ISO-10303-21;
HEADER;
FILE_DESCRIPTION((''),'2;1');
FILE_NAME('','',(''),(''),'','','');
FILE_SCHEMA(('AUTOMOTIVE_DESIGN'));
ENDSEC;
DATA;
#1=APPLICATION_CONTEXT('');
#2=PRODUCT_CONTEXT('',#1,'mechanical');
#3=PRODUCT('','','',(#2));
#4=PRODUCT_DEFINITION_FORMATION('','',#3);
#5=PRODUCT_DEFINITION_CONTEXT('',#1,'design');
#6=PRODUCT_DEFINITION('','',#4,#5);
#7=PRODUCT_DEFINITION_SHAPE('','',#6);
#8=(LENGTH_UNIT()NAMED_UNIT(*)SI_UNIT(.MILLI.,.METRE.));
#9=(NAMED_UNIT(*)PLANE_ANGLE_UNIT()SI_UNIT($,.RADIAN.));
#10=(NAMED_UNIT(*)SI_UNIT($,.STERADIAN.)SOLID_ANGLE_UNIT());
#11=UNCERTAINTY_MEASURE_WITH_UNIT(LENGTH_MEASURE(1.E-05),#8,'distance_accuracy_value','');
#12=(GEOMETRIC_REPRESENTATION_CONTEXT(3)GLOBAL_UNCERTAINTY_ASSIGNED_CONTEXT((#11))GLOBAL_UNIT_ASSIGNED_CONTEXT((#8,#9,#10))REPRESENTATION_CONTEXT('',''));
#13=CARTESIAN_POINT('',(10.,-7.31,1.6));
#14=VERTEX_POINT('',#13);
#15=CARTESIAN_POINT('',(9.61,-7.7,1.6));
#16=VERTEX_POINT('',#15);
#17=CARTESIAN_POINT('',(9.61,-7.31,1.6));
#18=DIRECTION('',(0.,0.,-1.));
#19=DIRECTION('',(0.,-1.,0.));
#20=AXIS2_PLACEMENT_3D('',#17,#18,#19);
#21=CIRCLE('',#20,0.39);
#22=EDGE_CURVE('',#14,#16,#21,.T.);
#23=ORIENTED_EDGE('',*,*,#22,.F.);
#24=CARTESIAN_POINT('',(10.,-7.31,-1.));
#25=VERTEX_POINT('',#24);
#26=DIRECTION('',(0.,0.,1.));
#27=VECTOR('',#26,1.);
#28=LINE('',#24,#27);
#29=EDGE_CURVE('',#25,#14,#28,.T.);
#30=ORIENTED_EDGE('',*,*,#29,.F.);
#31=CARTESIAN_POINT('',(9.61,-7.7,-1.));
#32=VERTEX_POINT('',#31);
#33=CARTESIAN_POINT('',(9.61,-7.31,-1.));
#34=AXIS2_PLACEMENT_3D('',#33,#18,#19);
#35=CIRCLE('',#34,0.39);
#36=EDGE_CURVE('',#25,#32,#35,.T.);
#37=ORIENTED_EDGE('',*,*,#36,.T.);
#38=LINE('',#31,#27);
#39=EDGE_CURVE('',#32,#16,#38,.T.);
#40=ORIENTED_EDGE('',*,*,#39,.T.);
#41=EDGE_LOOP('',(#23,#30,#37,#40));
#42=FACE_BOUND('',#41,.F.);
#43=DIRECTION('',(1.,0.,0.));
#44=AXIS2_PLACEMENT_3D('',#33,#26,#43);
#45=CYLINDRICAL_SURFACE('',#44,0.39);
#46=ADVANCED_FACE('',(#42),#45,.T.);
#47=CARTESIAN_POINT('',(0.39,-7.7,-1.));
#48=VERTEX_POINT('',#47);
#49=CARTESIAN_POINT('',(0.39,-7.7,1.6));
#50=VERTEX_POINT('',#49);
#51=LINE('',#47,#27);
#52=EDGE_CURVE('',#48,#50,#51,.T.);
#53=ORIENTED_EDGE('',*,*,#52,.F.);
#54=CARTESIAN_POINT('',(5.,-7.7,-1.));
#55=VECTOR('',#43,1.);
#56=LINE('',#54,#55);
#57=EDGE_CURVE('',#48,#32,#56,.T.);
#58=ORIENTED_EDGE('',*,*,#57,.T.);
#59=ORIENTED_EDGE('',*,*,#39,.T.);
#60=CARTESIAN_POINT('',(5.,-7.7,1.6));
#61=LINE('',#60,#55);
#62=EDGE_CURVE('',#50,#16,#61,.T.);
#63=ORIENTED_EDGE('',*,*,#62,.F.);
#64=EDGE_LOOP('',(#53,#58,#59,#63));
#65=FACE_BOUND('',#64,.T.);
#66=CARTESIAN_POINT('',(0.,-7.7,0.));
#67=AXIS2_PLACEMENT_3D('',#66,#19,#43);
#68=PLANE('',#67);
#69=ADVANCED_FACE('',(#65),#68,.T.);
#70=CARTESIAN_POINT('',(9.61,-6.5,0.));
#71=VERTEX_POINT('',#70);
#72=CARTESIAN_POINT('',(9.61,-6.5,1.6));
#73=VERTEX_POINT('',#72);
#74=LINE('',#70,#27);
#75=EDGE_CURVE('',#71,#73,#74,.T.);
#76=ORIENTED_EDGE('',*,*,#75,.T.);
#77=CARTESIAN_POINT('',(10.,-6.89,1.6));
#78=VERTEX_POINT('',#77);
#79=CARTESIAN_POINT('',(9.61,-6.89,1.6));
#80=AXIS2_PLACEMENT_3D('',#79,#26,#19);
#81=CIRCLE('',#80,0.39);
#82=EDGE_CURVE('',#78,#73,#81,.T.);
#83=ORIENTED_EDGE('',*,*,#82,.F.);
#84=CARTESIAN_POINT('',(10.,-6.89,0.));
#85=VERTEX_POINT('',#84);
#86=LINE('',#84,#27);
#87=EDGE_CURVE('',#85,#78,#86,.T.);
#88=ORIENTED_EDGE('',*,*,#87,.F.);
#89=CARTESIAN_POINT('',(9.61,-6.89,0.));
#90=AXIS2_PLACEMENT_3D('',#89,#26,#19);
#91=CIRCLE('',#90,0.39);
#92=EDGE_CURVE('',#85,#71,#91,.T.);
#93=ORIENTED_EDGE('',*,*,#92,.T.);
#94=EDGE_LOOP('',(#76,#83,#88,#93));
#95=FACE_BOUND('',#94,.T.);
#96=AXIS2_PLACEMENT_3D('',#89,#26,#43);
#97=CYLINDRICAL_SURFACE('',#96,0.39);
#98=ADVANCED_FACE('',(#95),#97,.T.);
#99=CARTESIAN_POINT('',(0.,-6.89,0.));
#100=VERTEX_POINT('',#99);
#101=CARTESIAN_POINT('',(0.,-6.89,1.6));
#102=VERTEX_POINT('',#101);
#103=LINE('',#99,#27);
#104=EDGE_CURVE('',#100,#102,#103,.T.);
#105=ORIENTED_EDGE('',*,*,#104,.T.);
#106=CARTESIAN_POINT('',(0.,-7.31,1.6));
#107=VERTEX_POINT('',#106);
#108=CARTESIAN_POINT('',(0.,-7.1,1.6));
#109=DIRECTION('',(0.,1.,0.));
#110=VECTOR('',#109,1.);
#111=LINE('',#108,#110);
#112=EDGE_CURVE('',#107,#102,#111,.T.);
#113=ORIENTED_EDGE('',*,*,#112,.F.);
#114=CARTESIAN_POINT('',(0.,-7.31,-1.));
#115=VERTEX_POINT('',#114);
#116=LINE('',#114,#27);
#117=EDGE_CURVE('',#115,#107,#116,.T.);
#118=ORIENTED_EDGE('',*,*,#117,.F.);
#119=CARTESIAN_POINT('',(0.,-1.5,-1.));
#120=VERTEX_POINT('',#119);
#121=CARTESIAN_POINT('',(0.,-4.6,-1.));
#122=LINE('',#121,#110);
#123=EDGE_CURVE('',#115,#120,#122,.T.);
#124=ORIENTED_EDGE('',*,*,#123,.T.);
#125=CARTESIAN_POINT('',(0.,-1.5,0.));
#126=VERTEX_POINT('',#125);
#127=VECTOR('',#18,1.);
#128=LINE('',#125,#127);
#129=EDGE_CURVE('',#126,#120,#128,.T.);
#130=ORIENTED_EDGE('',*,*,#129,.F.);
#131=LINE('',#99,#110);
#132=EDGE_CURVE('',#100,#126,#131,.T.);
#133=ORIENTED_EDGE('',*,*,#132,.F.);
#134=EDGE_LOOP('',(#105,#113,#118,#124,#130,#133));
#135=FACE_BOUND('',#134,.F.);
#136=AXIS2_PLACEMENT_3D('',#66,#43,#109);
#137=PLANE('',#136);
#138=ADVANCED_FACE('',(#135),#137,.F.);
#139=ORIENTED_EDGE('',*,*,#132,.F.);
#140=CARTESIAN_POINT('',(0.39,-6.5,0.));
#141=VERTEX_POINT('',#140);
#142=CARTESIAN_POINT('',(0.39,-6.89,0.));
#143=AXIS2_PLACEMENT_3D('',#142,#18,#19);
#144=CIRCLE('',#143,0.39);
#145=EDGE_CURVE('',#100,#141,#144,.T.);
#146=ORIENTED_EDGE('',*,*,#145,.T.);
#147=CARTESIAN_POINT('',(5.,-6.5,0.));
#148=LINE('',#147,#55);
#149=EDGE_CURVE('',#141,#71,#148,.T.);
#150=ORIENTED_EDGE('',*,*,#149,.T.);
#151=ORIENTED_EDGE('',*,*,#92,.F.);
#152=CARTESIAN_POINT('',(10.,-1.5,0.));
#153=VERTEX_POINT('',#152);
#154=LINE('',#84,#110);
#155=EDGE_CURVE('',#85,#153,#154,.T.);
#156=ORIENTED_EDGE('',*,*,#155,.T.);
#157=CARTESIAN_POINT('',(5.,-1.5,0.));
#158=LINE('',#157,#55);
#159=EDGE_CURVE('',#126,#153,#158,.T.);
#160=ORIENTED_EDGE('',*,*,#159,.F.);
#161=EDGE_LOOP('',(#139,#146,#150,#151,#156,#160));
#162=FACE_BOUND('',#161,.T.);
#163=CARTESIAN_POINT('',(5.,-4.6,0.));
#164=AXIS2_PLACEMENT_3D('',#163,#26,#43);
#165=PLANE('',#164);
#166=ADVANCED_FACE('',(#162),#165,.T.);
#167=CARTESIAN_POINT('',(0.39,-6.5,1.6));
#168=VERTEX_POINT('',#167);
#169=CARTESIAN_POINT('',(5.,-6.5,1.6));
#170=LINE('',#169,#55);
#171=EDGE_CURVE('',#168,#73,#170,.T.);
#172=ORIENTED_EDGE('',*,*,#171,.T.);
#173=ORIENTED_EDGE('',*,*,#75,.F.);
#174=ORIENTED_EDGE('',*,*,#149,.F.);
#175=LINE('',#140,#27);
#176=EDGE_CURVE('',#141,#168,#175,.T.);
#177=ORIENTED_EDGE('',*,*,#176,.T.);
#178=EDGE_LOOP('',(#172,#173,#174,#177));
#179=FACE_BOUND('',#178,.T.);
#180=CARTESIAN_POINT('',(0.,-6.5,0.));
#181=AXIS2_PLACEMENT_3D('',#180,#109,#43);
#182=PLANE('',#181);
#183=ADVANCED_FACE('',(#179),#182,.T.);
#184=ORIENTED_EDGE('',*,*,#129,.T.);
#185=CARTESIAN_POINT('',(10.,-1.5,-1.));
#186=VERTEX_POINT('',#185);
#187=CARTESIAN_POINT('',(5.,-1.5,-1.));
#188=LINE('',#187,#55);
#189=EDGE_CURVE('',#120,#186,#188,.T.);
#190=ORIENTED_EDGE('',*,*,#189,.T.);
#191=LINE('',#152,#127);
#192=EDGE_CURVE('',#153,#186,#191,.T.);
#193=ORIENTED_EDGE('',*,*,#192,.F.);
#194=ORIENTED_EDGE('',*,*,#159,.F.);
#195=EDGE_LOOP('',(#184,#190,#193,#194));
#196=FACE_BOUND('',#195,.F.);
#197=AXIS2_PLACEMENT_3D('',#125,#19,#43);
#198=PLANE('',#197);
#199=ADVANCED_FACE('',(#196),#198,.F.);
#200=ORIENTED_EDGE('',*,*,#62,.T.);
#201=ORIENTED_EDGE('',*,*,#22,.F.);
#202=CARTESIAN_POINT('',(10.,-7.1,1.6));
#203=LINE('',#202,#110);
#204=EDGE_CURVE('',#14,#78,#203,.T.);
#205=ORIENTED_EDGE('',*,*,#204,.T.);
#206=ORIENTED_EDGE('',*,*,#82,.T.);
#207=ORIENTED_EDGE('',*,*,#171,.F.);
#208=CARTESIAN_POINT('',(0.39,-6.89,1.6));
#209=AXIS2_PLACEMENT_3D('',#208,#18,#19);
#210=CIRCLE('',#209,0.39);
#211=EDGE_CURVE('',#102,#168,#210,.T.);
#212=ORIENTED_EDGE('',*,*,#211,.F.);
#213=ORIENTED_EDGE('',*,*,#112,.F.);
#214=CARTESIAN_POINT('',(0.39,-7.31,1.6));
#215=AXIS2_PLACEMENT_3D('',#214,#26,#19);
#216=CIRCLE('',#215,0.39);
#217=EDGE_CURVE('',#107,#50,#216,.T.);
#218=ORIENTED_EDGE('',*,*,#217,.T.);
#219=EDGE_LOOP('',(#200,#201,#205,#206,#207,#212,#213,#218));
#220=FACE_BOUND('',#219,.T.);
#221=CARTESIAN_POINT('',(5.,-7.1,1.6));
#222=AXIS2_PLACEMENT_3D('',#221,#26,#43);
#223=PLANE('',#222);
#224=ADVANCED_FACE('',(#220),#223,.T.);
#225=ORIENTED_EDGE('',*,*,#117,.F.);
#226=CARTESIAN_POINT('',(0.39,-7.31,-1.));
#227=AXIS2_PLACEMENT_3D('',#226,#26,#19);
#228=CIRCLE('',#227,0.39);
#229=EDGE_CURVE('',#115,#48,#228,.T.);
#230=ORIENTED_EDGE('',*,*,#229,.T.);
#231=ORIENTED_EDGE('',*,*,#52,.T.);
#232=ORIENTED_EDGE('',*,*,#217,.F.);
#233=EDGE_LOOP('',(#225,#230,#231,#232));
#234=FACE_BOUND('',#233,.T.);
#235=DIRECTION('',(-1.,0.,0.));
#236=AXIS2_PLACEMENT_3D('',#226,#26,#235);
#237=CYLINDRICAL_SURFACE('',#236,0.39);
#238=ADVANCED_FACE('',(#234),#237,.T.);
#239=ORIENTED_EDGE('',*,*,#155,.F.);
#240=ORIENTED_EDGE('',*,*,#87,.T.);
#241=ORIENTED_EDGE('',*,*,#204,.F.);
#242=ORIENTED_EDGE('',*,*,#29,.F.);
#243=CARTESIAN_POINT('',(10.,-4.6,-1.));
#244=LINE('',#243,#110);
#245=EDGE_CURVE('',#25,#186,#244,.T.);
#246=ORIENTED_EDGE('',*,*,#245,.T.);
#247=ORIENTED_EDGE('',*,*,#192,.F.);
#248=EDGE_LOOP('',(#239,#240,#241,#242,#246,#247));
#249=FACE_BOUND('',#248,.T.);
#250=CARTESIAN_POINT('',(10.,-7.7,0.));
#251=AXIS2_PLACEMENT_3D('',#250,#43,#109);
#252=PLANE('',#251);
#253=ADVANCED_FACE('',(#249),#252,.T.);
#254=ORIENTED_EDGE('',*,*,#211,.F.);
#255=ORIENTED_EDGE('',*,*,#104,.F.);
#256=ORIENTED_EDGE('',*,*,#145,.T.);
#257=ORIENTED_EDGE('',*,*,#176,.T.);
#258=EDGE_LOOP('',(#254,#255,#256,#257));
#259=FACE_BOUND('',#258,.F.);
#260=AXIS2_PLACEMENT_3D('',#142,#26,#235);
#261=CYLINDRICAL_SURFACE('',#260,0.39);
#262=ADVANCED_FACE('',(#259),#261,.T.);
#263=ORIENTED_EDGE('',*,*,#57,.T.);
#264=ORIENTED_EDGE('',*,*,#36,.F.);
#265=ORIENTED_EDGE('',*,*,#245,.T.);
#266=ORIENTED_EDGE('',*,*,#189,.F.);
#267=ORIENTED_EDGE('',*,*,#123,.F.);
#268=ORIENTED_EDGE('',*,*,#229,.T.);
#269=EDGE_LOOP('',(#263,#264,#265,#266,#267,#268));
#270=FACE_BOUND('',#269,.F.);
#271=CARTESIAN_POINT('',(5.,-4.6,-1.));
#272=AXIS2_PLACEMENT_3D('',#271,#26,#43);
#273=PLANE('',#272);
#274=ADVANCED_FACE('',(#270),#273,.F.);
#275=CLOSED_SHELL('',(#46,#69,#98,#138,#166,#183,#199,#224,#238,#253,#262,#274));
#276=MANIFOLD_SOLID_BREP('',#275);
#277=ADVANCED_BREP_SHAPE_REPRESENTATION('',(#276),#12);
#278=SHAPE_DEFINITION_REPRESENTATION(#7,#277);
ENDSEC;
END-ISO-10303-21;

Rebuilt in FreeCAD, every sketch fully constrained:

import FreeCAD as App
import Part
import Sketcher

V = App.Vector


def edges_at(feature, points):
    """Names of the edges that pass closest to the given points."""
    edges = feature.Shape.Edges
    near = lambda p: min(range(len(edges)), key=lambda i: edges[i].distToShape(Part.Vertex(*p))[0])
    return sorted({f"Edge{near(p) + 1}" for p in points})

doc = App.newDocument("Part")
body = doc.addObject("PartDesign::Body", "Body")

# Sketch on XY plane
sketch1 = doc.addObject("Sketcher::SketchObject", "Sketch")
body.addObject(sketch1)
sketch1.AttachmentSupport = (doc.XY_Plane, [""])
sketch1.MapMode = "FlatFace"
sketch1.addGeometry(Part.LineSegment(V(0, 0, 0), V(0, -1.2, 0)), False)
sketch1.addGeometry(Part.LineSegment(V(0, -1.2, 0), V(10, -1.2, 0)), False)
sketch1.addGeometry(Part.LineSegment(V(10, -1.2, 0), V(10, 0, 0)), False)
sketch1.addGeometry(Part.LineSegment(V(10, 0, 0), V(0, 0, 0)), False)
sketch1.addConstraint(Sketcher.Constraint("Coincident", 0, 2, 1, 1))
sketch1.addConstraint(Sketcher.Constraint("Coincident", 1, 2, 2, 1))
sketch1.addConstraint(Sketcher.Constraint("Coincident", 2, 2, 3, 1))
sketch1.addConstraint(Sketcher.Constraint("Coincident", 3, 2, 0, 1))
sketch1.addConstraint(Sketcher.Constraint("Vertical", 0))
sketch1.addConstraint(Sketcher.Constraint("Horizontal", 1))
sketch1.addConstraint(Sketcher.Constraint("Vertical", 2))
sketch1.addConstraint(Sketcher.Constraint("Horizontal", 3))
sketch1.addConstraint(Sketcher.Constraint("Coincident", 3, 2, -1, 1))
sketch1.addConstraint(Sketcher.Constraint("DistanceX", 1, 1, 1, 2, 10.0))
sketch1.addConstraint(Sketcher.Constraint("DistanceY", 0, 2, 0, 1, 1.2))
pad1 = doc.addObject("PartDesign::Pad", "Pad")
body.addObject(pad1)
pad1.Profile = sketch1
pad1.Length = 1.6

# Sketch on XY plane
sketch2 = doc.addObject("Sketcher::SketchObject", "Sketch001")
body.addObject(sketch2)
sketch2.AttachmentSupport = (doc.XY_Plane, [""])
sketch2.MapMode = "FlatFace"
sketch2.addGeometry(Part.LineSegment(V(0, 5, 0), V(0, -1, 0)), False)
sketch2.addGeometry(Part.LineSegment(V(0, -1, 0), V(10, -1, 0)), False)
sketch2.addGeometry(Part.LineSegment(V(10, -1, 0), V(10, 5, 0)), False)
sketch2.addGeometry(Part.LineSegment(V(10, 5, 0), V(0, 5, 0)), False)
sketch2.addConstraint(Sketcher.Constraint("Coincident", 0, 2, 1, 1))
sketch2.addConstraint(Sketcher.Constraint("Coincident", 1, 2, 2, 1))
sketch2.addConstraint(Sketcher.Constraint("Coincident", 2, 2, 3, 1))
sketch2.addConstraint(Sketcher.Constraint("Coincident", 3, 2, 0, 1))
sketch2.addConstraint(Sketcher.Constraint("Vertical", 0))
sketch2.addConstraint(Sketcher.Constraint("Horizontal", 1))
sketch2.addConstraint(Sketcher.Constraint("Vertical", 2))
sketch2.addConstraint(Sketcher.Constraint("Horizontal", 3))
sketch2.addConstraint(Sketcher.Constraint("PointOnObject", 0, 2, -2))
sketch2.addConstraint(Sketcher.Constraint("DistanceX", 1, 1, 1, 2, 10.0))
sketch2.addConstraint(Sketcher.Constraint("DistanceY", 0, 2, 0, 1, 6.2))
sketch2.addConstraint(Sketcher.Constraint("DistanceY", -1, 1, 2, 2, 5.0))
pad2 = doc.addObject("PartDesign::Pad", "Pad001")
body.addObject(pad2)
pad2.Profile = sketch2
pad2.Length = 1
pad2.Reversed = True
doc.recompute()

fillet = doc.addObject("PartDesign::Fillet", "Fillet")
body.addObject(fillet)
fillet.Base = (pad2, edges_at(pad2, [
    (0, -1.2, 0.3),
    (10, -1.2, 0.3),
    (10, 0, 0.8),
    (0, 0, 0.8),
]))
fillet.Radius = 0.39
body2 = doc.addObject("PartDesign::Body", "Body001")
doc.recompute()

body.Placement = App.Placement(V(0, -6.5, 0), App.Rotation(V(0, 0, 1), 0))
boolean = doc.addObject("PartDesign::Boolean", "Boolean")
body2.addObject(boolean)
boolean.Type = "Fuse"
boolean.addObjects([body])

doc.recompute()
